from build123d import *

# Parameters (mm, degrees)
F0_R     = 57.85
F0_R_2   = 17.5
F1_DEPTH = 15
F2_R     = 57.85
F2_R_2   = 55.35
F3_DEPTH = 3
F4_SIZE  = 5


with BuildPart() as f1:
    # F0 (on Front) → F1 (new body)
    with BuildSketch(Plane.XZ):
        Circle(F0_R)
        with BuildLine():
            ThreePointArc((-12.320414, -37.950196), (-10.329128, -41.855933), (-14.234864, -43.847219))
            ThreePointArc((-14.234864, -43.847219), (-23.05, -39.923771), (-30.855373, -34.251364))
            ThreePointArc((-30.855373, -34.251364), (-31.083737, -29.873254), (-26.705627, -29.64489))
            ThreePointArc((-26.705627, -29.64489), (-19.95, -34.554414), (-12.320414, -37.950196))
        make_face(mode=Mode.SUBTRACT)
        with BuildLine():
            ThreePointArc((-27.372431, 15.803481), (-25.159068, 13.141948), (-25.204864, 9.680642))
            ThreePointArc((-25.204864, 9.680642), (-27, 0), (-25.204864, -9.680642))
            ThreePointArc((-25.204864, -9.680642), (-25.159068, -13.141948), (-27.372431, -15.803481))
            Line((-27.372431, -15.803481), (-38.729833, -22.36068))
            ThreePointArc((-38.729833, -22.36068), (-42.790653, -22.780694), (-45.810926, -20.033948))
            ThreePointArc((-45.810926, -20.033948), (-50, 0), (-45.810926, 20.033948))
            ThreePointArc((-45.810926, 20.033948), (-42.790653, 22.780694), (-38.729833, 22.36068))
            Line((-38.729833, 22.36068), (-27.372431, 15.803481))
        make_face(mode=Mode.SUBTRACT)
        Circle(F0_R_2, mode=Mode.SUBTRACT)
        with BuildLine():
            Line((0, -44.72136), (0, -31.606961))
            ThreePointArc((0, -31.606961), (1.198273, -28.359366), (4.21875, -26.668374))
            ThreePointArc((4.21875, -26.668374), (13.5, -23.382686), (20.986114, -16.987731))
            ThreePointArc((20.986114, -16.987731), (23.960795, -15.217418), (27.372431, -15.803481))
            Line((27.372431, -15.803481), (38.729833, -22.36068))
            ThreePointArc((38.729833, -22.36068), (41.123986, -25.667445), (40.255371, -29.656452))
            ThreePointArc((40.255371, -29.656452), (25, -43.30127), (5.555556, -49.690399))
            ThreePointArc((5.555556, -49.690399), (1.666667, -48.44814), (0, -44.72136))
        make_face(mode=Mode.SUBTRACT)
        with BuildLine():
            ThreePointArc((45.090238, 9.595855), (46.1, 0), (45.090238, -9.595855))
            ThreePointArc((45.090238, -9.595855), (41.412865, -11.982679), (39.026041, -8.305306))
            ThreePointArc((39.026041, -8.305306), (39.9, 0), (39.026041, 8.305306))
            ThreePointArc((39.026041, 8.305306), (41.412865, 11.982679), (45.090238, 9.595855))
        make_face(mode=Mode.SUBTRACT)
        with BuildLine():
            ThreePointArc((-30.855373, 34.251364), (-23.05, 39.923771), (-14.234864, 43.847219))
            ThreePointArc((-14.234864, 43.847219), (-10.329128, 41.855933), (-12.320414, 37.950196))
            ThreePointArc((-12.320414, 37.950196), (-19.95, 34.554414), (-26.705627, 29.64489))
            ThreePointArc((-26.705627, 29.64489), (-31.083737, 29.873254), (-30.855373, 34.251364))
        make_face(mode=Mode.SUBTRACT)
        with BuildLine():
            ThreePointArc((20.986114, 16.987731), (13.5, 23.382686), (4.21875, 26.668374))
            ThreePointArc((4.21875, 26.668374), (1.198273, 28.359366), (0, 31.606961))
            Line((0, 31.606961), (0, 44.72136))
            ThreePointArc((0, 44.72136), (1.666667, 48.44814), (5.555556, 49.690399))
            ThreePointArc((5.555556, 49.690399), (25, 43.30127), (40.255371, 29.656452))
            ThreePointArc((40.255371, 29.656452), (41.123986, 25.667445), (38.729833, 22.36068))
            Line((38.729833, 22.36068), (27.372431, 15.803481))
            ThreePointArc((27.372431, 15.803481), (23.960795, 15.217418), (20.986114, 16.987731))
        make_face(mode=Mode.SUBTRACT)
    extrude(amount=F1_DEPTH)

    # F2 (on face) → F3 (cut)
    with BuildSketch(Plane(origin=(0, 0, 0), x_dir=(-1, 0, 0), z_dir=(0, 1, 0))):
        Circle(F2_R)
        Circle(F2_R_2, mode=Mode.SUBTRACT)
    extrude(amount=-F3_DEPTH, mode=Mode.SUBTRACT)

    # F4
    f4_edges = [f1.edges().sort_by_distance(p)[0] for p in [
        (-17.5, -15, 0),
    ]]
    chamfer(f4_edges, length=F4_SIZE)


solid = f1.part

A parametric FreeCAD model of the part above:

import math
import FreeCAD as App
import Part
import Sketcher
from FreeCAD import Vector
Q = App.Units.Quantity


def edges_at(feature, points):
    """Names of the edges that pass closest to the given points."""
    edges = feature.Shape.Edges
    near = lambda p: min(range(len(edges)), key=lambda i: edges[i].distToShape(Part.Vertex(*p))[0])
    return sorted({f"Edge{near(p) + 1}" for p in points})

doc = App.newDocument("Part")
params = doc.addObject("Spreadsheet::Sheet", "Params")
for row, (alias, value) in enumerate([
    ("sketch1_diameter", "35 mm"),
    ("sketch1_radius", "4.999999 mm"),
    ("sketch1_radius2", "27 mm"),
    ("sketch1_radius3", "50.000001 mm"),
    ("sketch1_diameter2", "115.7 mm"),
    ("pad1_length", "15 mm"),
    ("sketch2_diameter", "115.7 mm"),
    ("sketch2_diameter2", "110.7 mm"),
    ("pocket1_length", "3 mm"),
    ("chamfer_size", "5 mm"),
], start=1):
    params.set(f"A{row}", alias)
    params.set(f"B{row}", "=" + value)
    params.setAlias(f"B{row}", alias)

body = doc.addObject("PartDesign::Body", "Body")

# Sketch on XZ plane
sketch1 = body.newObject("Sketcher::SketchObject", "Sketch")
sketch1.AttachmentSupport = (doc.getObject("XZ_Plane"), [""])
sketch1.MapMode = "FlatFace"
sketch1.addGeometry([
    Part.Circle(Vector(0, 0, 0), Vector(0, 0, 1), 57.9),  # 0
    Part.ArcOfCircle(Part.Circle(Vector(0, 0, 0), Vector(0, 0, 1), 39.9), math.radians(-132), math.radians(-108)),  # 1
    Part.ArcOfCircle(Part.Circle(Vector(-13.3, -40.9, 0), Vector(0, 0, 1), 3.1), math.radians(-108), math.radians(72)),  # 2
    Part.ArcOfCircle(Part.Circle(Vector(0, 0, 0), Vector(0, 0, 1), 46.1), math.radians(-132), math.radians(-108)),  # 3
    Part.ArcOfCircle(Part.Circle(Vector(-28.8, -31.9, 0), Vector(0, 0, 1), 3.1), math.radians(48), math.radians(228)),  # 4
    Part.ArcOfCircle(Part.Circle(Vector(5, -44.7, 0), Vector(0, 0, 1), 5), math.radians(180), math.radians(276)),  # 5
    Part.LineSegment(Vector(0, -44.7, 0), Vector(0, -31.6, 0)),  # 6
    Part.ArcOfCircle(Part.Circle(Vector(5, -31.6, 0), Vector(0, 0, 1), 5), math.radians(99), math.radians(180)),  # 7
    Part.ArcOfCircle(Part.Circle(Vector(0, 0, 0), Vector(0, 0, 1), 27), math.radians(-81), math.radians(-39)),  # 8
    Part.ArcOfCircle(Part.Circle(Vector(24.9, -20.1, 0), Vector(0, 0, 1), 5), math.radians(60), math.radians(141)),  # 9
    Part.LineSegment(Vector(27.4, -15.8, 0), Vector(38.7, -22.4, 0)),  # 10
    Part.ArcOfCircle(Part.Circle(Vector(36.2, -26.7, 0), Vector(0, 0, 1), 5), math.radians(-36), math.radians(60)),  # 11
    Part.ArcOfCircle(Part.Circle(Vector(0, 0, 0), Vector(0, 0, 1), 50), math.radians(-84), math.radians(-36)),  # 12
    Part.LineSegment(Vector(-38.7, 22.4, 0), Vector(-27.4, 15.8, 0)),  # 13
    Part.ArcOfCircle(Part.Circle(Vector(-29.9, 11.5, 0), Vector(0, 0, 1), 5), math.radians(-21), math.radians(60)),  # 14
    Part.ArcOfCircle(Part.Circle(Vector(0, 0, 0), Vector(0, 0, 1), 27), math.radians(159), math.radians(201)),  # 15
    Part.ArcOfCircle(Part.Circle(Vector(-29.9, -11.5, 0), Vector(0, 0, 1), 5), math.radians(-60), math.radians(21)),  # 16
    Part.LineSegment(Vector(-27.4, -15.8, 0), Vector(-38.7, -22.4, 0)),  # 17
    Part.ArcOfCircle(Part.Circle(Vector(-41.2, -18, 0), Vector(0, 0, 1), 5), math.radians(-156), math.radians(-60)),  # 18
    Part.ArcOfCircle(Part.Circle(Vector(0, 0, 0), Vector(0, 0, 1), 50), math.radians(156), math.radians(204)),  # 19
    Part.ArcOfCircle(Part.Circle(Vector(-41.2, 18, 0), Vector(0, 0, 1), 5), math.radians(60), math.radians(156)),  # 20
    Part.ArcOfCircle(Part.Circle(Vector(-28.8, 31.9, 0), Vector(0, 0, 1), 3.1), math.radians(132), math.radians(312)),  # 21
    Part.ArcOfCircle(Part.Circle(Vector(0, 0, 0), Vector(0, 0, 1), 46.1), math.radians(108), math.radians(132)),  # 22
    Part.ArcOfCircle(Part.Circle(Vector(-13.3, 40.9, 0), Vector(0, 0, 1), 3.1), math.radians(-72), math.radians(108)),  # 23
    Part.ArcOfCircle(Part.Circle(Vector(0, 0, 0), Vector(0, 0, 1), 39.9), math.radians(108), math.radians(132)),  # 24
    Part.Circle(Vector(0, 0, 0), Vector(0, 0, 1), 17.5),  # 25
    Part.ArcOfCircle(Part.Circle(Vector(42.1, 9, 0), Vector(0, 0, 1), 3.1), math.radians(12), math.radians(192)),  # 26
    Part.ArcOfCircle(Part.Circle(Vector(0, 0, 0), Vector(0, 0, 1), 46.1), math.radians(-12), math.radians(12)),  # 27
    Part.ArcOfCircle(Part.Circle(Vector(42.1, -9, 0), Vector(0, 0, 1), 3.1), math.radians(168), math.radians(348)),  # 28
    Part.ArcOfCircle(Part.Circle(Vector(0, 0, 0), Vector(0, 0, 1), 39.9), math.radians(-12), math.radians(12)),  # 29
    Part.ArcOfCircle(Part.Circle(Vector(24.9, 20.1, 0), Vector(0, 0, 1), 5), math.radians(-141), math.radians(-60)),  # 30
    Part.ArcOfCircle(Part.Circle(Vector(0, 0, 0), Vector(0, 0, 1), 27), math.radians(39), math.radians(81)),  # 31
    Part.ArcOfCircle(Part.Circle(Vector(5, 31.6, 0), Vector(0, 0, 1), 5), math.radians(180), math.radians(261)),  # 32
    Part.LineSegment(Vector(0, 31.6, 0), Vector(0, 44.7, 0)),  # 33
    Part.ArcOfCircle(Part.Circle(Vector(5, 44.7, 0), Vector(0, 0, 1), 5), math.radians(84), math.radians(180)),  # 34
    Part.ArcOfCircle(Part.Circle(Vector(0, 0, 0), Vector(0, 0, 1), 50), math.radians(36), math.radians(84)),  # 35
    Part.ArcOfCircle(Part.Circle(Vector(36.2, 26.7, 0), Vector(0, 0, 1), 5), math.radians(-60), math.radians(36)),  # 36
    Part.LineSegment(Vector(38.7, 22.4, 0), Vector(27.4, 15.8, 0)),  # 37
], False)
sketch1.addConstraint([
    Sketcher.Constraint("Tangent", 1, 2, 2, 2),
    Sketcher.Constraint("Tangent", 2, 1, 3, 2),
    Sketcher.Constraint("Tangent", 3, 1, 4, 2),
    Sketcher.Constraint("Tangent", 4, 1, 1, 1),
    Sketcher.Constraint("Tangent", 5, 1, 6, 1),
    Sketcher.Constraint("Tangent", 6, 2, 7, 2),
    Sketcher.Constraint("Tangent", 7, 1, 8, 1),
    Sketcher.Constraint("Tangent", 8, 2, 9, 2),
    Sketcher.Constraint("Tangent", 9, 1, 10, 1),
    Sketcher.Constraint("Tangent", 10, 2, 11, 2),
    Sketcher.Constraint("Tangent", 11, 1, 12, 2),
    Sketcher.Constraint("Tangent", 12, 1, 5, 2),
    Sketcher.Constraint("Tangent", 13, 2, 14, 2),
    Sketcher.Constraint("Tangent", 14, 1, 15, 1),
    Sketcher.Constraint("Tangent", 15, 2, 16, 2),
    Sketcher.Constraint("Tangent", 16, 1, 17, 1),
    Sketcher.Constraint("Tangent", 17, 2, 18, 2),
    Sketcher.Constraint("Tangent", 18, 1, 19, 2),
    Sketcher.Constraint("Tangent", 19, 1, 20, 2),
    Sketcher.Constraint("Tangent", 20, 1, 13, 1),
    Sketcher.Constraint("Tangent", 21, 1, 22, 2),
    Sketcher.Constraint("Tangent", 22, 1, 23, 2),
    Sketcher.Constraint("Tangent", 23, 1, 24, 1),
    Sketcher.Constraint("Tangent", 24, 2, 21, 2),
    Sketcher.Constraint("Tangent", 26, 1, 27, 2),
    Sketcher.Constraint("Tangent", 27, 1, 28, 2),
    Sketcher.Constraint("Tangent", 28, 1, 29, 1),
    Sketcher.Constraint("Tangent", 29, 2, 26, 2),
    Sketcher.Constraint("Tangent", 30, 1, 31, 1),
    Sketcher.Constraint("Tangent", 31, 2, 32, 2),
    Sketcher.Constraint("Tangent", 32, 1, 33, 1),
    Sketcher.Constraint("Tangent", 33, 2, 34, 2),
    Sketcher.Constraint("Tangent", 34, 1, 35, 2),
    Sketcher.Constraint("Tangent", 35, 1, 36, 2),
    Sketcher.Constraint("Tangent", 36, 1, 37, 1),
    Sketcher.Constraint("Tangent", 37, 2, 30, 2),
    Sketcher.Constraint("Vertical", 6),
    Sketcher.Constraint("Vertical", 33),
    Sketcher.Constraint("Coincident", 0, 3, -1, 1),
    Sketcher.Constraint("Coincident", 3, 3, -1, 1),
    Sketcher.Constraint("Coincident", 8, 3, -1, 1),
    Sketcher.Constraint("Coincident", 12, 3, -1, 1),
    Sketcher.Constraint("Coincident", 15, 3, -1, 1),
    Sketcher.Constraint("Coincident", 19, 3, -1, 1),
    Sketcher.Constraint("Coincident", 22, 3, -1, 1),
    Sketcher.Constraint("Coincident", 25, 3, -1, 1),
    Sketcher.Constraint("Coincident", 27, 3, -1, 1),
    Sketcher.Constraint("Coincident", 29, 3, -1, 1),
    Sketcher.Constraint("Coincident", 31, 3, -1, 1),
    Sketcher.Constraint("Coincident", 35, 3, -1, 1),
    Sketcher.Constraint("Coincident", 24, 3, 22, 3),
    Sketcher.Constraint("Equal", 2, 4),
    Sketcher.Constraint("Equal", 5, 7),
    Sketcher.Constraint("Equal", 7, 9),
    Sketcher.Constraint("Equal", 9, 11),
    Sketcher.Constraint("Equal", 11, 14),
    Sketcher.Constraint("Equal", 8, 15),
    Sketcher.Constraint("Equal", 14, 16),
    Sketcher.Constraint("Equal", 16, 18),
    Sketcher.Constraint("Equal", 12, 19),
    Sketcher.Constraint("Equal", 18, 20),
    Sketcher.Constraint("Equal", 4, 21),
    Sketcher.Constraint("Equal", 3, 22),
    Sketcher.Constraint("Equal", 1, 24),
    Sketcher.Constraint("Equal", 23, 26),
    Sketcher.Constraint("Equal", 20, 30),
    Sketcher.Constraint("Equal", 15, 31),
    Sketcher.Constraint("Equal", 30, 32),
    Sketcher.Constraint("Equal", 32, 34),
    Sketcher.Constraint("Equal", 19, 35),
    Sketcher.Constraint("Equal", 34, 36),
    Sketcher.Constraint("Symmetric", 9, 1, 13, 2, -1, 1),
    Sketcher.Constraint("Symmetric", 6, 2, 32, 1, -1, 1),
    Sketcher.Constraint("Symmetric", 17, 2, 36, 1, -1, 1),
    Sketcher.Constraint("Symmetric", 9, 1, 16, 1, -2),
    Sketcher.Constraint("Parallel", 10, 13),
    Sketcher.Constraint("Vertical", 4, 3, 21, 3),
    Sketcher.Constraint("Vertical", 2, 3, 23, 3),
    Sketcher.Constraint("Vertical", 26, 3, 28, 3),
    Sketcher.Constraint("Diameter", 25, Q("35 mm")),
    Sketcher.Constraint("Radius", 5, Q("4.999999 mm")),
    Sketcher.Constraint("Radius", 8, Q("27 mm")),
    Sketcher.Constraint("Radius", 12, Q("50.000001 mm")),
    Sketcher.Constraint("Diameter", 0, Q("115.7 mm")),
    Sketcher.Constraint("Radius", 2, Q("3.1 mm")),
    Sketcher.Constraint("Radius", 27, Q("46.099998 mm")),
    Sketcher.Constraint("Angle", 10, Q("-30 deg")),
    Sketcher.Constraint("Radius", 3, Q("46.099991 mm")),
    Sketcher.Constraint("DistanceX", 4, 3, -1, 1, Q("28.7805 mm")),
    Sketcher.Constraint("DistanceX", 2, 3, -1, 1, Q("13.277639 mm")),
    Sketcher.Constraint("DistanceX", -1, 1, 26, 3, Q("42.05814 mm")),
])
sketch1.setExpression("Constraints[79]", "Params.sketch1_diameter")
sketch1.setExpression("Constraints[80]", "Params.sketch1_radius")
sketch1.setExpression("Constraints[81]", "Params.sketch1_radius2")
sketch1.setExpression("Constraints[82]", "Params.sketch1_radius3")
sketch1.setExpression("Constraints[83]", "Params.sketch1_diameter2")
pad1 = body.newObject("PartDesign::Pad", "Pad")
pad1.Profile = sketch1
pad1.setExpression("Length", "Params.pad1_length")

# Sketch on XZ plane
sketch2 = body.newObject("Sketcher::SketchObject", "Sketch001")
sketch2.AttachmentSupport = (doc.getObject("XZ_Plane"), [""])
sketch2.MapMode = "FlatFace"
sketch2.addGeometry([
    Part.Circle(Vector(0, 0, 0), Vector(0, 0, 1), 58),
    Part.Circle(Vector(0, 0, 0), Vector(0, 0, 1), 55),
], False)
sketch2.addConstraint([
    Sketcher.Constraint("Coincident", 0, 3, -1, 1),
    Sketcher.Constraint("Coincident", 1, 3, -1, 1),
    Sketcher.Constraint("Diameter", 0, Q("115.7 mm")),
    Sketcher.Constraint("Diameter", 1, Q("110.7 mm")),
])
sketch2.setExpression("Constraints[2]", "Params.sketch2_diameter")
sketch2.setExpression("Constraints[3]", "Params.sketch2_diameter2")
pocket1 = body.newObject("PartDesign::Pocket", "Pocket")
pocket1.Profile = sketch2
pocket1.setExpression("Length", "Params.pocket1_length")
pocket1.Reversed = True
doc.recompute()

chamfer = body.newObject("PartDesign::Chamfer", "Chamfer")
chamfer.Base = (pocket1, edges_at(pocket1, [(-17.5, -15, 0)]))
chamfer.setExpression("Size", "Params.chamfer_size")

doc.recompute()
